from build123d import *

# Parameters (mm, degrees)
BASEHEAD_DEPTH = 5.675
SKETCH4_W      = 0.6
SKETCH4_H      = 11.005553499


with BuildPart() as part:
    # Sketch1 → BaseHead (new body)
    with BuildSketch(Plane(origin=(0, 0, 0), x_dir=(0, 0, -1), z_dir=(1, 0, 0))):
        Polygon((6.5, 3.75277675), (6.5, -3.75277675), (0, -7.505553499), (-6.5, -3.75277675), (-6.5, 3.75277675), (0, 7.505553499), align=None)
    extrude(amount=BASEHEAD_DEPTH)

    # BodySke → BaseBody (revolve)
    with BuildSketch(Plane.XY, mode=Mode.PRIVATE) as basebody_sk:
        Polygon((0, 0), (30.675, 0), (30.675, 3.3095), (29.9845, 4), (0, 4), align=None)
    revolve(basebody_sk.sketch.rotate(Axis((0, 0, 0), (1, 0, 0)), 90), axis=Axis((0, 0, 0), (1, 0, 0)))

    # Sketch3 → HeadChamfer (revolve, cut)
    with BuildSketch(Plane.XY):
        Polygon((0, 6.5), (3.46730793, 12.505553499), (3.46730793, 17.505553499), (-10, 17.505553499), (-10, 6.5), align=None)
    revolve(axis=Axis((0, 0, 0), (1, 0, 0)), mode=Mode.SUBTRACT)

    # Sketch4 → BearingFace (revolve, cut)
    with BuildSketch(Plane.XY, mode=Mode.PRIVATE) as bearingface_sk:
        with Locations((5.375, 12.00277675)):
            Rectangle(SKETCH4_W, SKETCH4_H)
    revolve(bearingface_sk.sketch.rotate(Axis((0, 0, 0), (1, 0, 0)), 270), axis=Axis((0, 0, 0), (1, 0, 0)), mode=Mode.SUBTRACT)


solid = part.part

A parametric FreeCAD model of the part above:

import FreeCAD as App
import Part
import Sketcher

V = App.Vector
Q = App.Units.Quantity


def add_polygon(sketch, points):
    """Adds a closed chain of lines whose ends are joined by coincident constraints."""
    first, n = sketch.GeometryCount, len(points)
    for a, b in zip(points, points[1:] + points[:1]):
        sketch.addGeometry(Part.LineSegment(App.Vector(*a, 0), App.Vector(*b, 0)), False)
    for i in range(n):
        sketch.addConstraint(Sketcher.Constraint("Coincident", first + i, 2, first + (i + 1) % n, 1))

doc = App.newDocument("Part")
body = doc.addObject("PartDesign::Body", "Body")

sketch1 = body.newObject("Sketcher::SketchObject", "Sketch")
sketch1.AttachmentSupport = (doc.getObject("YZ_Plane"), [""])
sketch1.MapMode = "FlatFace"
add_polygon(sketch1, [(-4, -6), (4, -6), (8, 0), (4, 6), (-4, 6), (-8, 0)])
sketch1.addConstraint(Sketcher.Constraint("Horizontal", 0))
sketch1.addConstraint(Sketcher.Constraint("Horizontal", 3))
sketch1.addConstraint(Sketcher.Constraint("Symmetric", 0, 2, 3, 2, -1, 1))
sketch1.addConstraint(Sketcher.Constraint("Symmetric", 1, 2, 4, 2, -1, 1))
sketch1.addConstraint(Sketcher.Constraint("PointOnObject", 1, 2, -1))
sketch1.addConstraint(Sketcher.Constraint("Parallel", 2, 5))
sketch1.addConstraint(Sketcher.Constraint("Vertical", 0, 2, 2, 2))
sketch1.addConstraint(Sketcher.Constraint("Angle", 1, Q("60 deg")))
sketch1.addConstraint(Sketcher.Constraint("DistanceY", 0, 2, 2, 2, Q("13 mm")))
sketch1.addConstraint(Sketcher.Constraint("DistanceX", 0, 1, 0, 2, Q("7.505554 mm")))
pad1 = body.newObject("PartDesign::Pad", "Pad")
pad1.Profile = sketch1
pad1.Length = 5.675

sketch2 = body.newObject("Sketcher::SketchObject", "Sketch001")
sketch2.AttachmentSupport = (doc.getObject("XY_Plane"), [""])
sketch2.MapMode = "FlatFace"
add_polygon(sketch2, [(0, 0), (30.7, 0), (30.7, 3.3), (30, 4), (0, 4)])
sketch2.addConstraint(Sketcher.Constraint("Horizontal", 0))
sketch2.addConstraint(Sketcher.Constraint("Vertical", 1))
sketch2.addConstraint(Sketcher.Constraint("Horizontal", 3))
sketch2.addConstraint(Sketcher.Constraint("Vertical", 4))
sketch2.addConstraint(Sketcher.Constraint("Coincident", 4, 2, -1, 1))
sketch2.addConstraint(Sketcher.Constraint("DistanceY", 4, 2, 4, 1, Q("4 mm")))
sketch2.addConstraint(Sketcher.Constraint("Angle", 2, Q("135 deg")))
sketch2.addConstraint(Sketcher.Constraint("DistanceX", 0, 1, 0, 2, Q("30.675 mm")))
sketch2.addConstraint(Sketcher.Constraint("DistanceX", 3, 2, 3, 1, Q("29.9845 mm")))
revolution = body.newObject("PartDesign::Revolution", "Revolution")
revolution.Profile = sketch2
revolution.ReferenceAxis = (sketch2, ["H_Axis"])
revolution.Angle = 360

sketch3 = body.newObject("Sketcher::SketchObject", "Sketch002")
sketch3.AttachmentSupport = (doc.getObject("XY_Plane"), [""])
sketch3.MapMode = "FlatFace"
add_polygon(sketch3, [(0, 6), (3, 13), (3, 18), (-10, 18), (-10, 6)])
sketch3.addConstraint(Sketcher.Constraint("Vertical", 1))
sketch3.addConstraint(Sketcher.Constraint("Horizontal", 2))
sketch3.addConstraint(Sketcher.Constraint("Vertical", 3))
sketch3.addConstraint(Sketcher.Constraint("Horizontal", 4))
sketch3.addConstraint(Sketcher.Constraint("PointOnObject", 4, 2, -2))
sketch3.addConstraint(Sketcher.Constraint("DistanceX", 4, 1, 4, 2, Q("10 mm")))
sketch3.addConstraint(Sketcher.Constraint("DistanceY", 1, 1, 1, 2, Q("5 mm")))
sketch3.addConstraint(Sketcher.Constraint("Angle", 0, Q("60 deg")))
sketch3.addConstraint(Sketcher.Constraint("DistanceY", -1, 1, 3, 2, Q("6.5 mm")))
sketch3.addConstraint(Sketcher.Constraint("DistanceX", 2, 2, 2, 1, Q("13.467308 mm")))
groove = body.newObject("PartDesign::Groove", "Groove")
groove.Profile = sketch3
groove.ReferenceAxis = (sketch3, ["H_Axis"])
groove.Angle = 360

sketch4 = body.newObject("Sketcher::SketchObject", "Sketch003")
sketch4.AttachmentSupport = (doc.getObject("XY_Plane"), [""])
sketch4.MapMode = "FlatFace"
add_polygon(sketch4, [(5.1, 17.5), (5.1, 6.5), (5.7, 6.5), (5.7, 17.5)])
sketch4.addConstraint(Sketcher.Constraint("Vertical", 0))
sketch4.addConstraint(Sketcher.Constraint("Horizontal", 1))
sketch4.addConstraint(Sketcher.Constraint("Vertical", 2))
sketch4.addConstraint(Sketcher.Constraint("Horizontal", 3))
sketch4.addConstraint(Sketcher.Constraint("DistanceX", 1, 1, 1, 2, Q("0.6 mm")))
sketch4.addConstraint(Sketcher.Constraint("DistanceY", -1, 1, 0, 2, Q("6.5 mm")))
sketch4.addConstraint(Sketcher.Constraint("DistanceX", -1, 1, 0, 2, Q("5.075 mm")))
sketch4.addConstraint(Sketcher.Constraint("DistanceY", 0, 2, 0, 1, Q("11.005553 mm")))
groove2 = body.newObject("PartDesign::Groove", "Groove001")
groove2.Profile = sketch4
groove2.ReferenceAxis = (sketch4, ["H_Axis"])
groove2.Angle = 360

doc.recompute()
